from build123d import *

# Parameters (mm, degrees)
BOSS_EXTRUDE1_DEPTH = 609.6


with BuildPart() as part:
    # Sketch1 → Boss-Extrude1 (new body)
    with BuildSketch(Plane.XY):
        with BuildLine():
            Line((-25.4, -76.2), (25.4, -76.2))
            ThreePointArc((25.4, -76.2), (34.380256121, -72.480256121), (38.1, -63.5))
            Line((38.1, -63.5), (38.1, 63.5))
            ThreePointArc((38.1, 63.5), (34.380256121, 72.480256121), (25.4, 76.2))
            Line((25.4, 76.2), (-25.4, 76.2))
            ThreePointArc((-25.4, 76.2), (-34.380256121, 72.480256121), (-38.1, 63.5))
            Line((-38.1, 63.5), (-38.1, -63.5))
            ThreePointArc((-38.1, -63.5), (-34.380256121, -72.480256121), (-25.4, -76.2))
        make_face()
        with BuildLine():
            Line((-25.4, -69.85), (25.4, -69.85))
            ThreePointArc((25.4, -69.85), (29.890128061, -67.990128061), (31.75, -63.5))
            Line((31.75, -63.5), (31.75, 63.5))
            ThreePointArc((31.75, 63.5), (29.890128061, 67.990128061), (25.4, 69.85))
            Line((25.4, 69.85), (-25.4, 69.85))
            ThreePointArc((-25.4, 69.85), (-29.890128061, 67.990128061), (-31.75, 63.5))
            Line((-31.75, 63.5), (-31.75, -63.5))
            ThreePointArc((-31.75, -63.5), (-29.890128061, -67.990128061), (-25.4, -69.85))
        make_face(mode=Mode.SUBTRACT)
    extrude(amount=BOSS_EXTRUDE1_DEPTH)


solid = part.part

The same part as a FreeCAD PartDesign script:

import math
import FreeCAD as App
import Part
import Sketcher

V = App.Vector
Q = App.Units.Quantity

doc = App.newDocument("Part")
body = doc.addObject("PartDesign::Body", "Body")

sketch1 = doc.addObject("Sketcher::SketchObject", "Sketch")
body.addObject(sketch1)
sketch1.AttachmentSupport = (doc.XY_Plane, [""])
sketch1.MapMode = "FlatFace"
sketch1.addGeometry(Part.LineSegment(V(-25, -76, 0), V(25, -76, 0)), False)
sketch1.addGeometry(Part.ArcOfCircle(Part.Circle(V(25, -64, 0), V(0, 0, 1), 13), math.radians(-90), math.radians(0)), False)
sketch1.addGeometry(Part.LineSegment(V(38, -64, 0), V(38, 64, 0)), False)
sketch1.addGeometry(Part.ArcOfCircle(Part.Circle(V(25, 64, 0), V(0, 0, 1), 13), math.radians(0), math.radians(90)), False)
sketch1.addGeometry(Part.LineSegment(V(25, 76, 0), V(-25, 76, 0)), False)
sketch1.addGeometry(Part.ArcOfCircle(Part.Circle(V(-25, 64, 0), V(0, 0, 1), 13), math.radians(90), math.radians(180)), False)
sketch1.addGeometry(Part.LineSegment(V(-38, 64, 0), V(-38, -64, 0)), False)
sketch1.addGeometry(Part.ArcOfCircle(Part.Circle(V(-25, -64, 0), V(0, 0, 1), 13), math.radians(180), math.radians(270)), False)
sketch1.addGeometry(Part.LineSegment(V(25, -70, 0), V(-25, -70, 0)), False)
sketch1.addGeometry(Part.ArcOfCircle(Part.Circle(V(-25, -64, 0), V(0, 0, 1), 6), math.radians(180), math.radians(270)), False)
sketch1.addGeometry(Part.LineSegment(V(-32, -64, 0), V(-32, 64, 0)), False)
sketch1.addGeometry(Part.ArcOfCircle(Part.Circle(V(-25, 64, 0), V(0, 0, 1), 6), math.radians(90), math.radians(180)), False)
sketch1.addGeometry(Part.LineSegment(V(-25, 70, 0), V(25, 70, 0)), False)
sketch1.addGeometry(Part.ArcOfCircle(Part.Circle(V(25, 64, 0), V(0, 0, 1), 6), math.radians(0), math.radians(90)), False)
sketch1.addGeometry(Part.LineSegment(V(32, 64, 0), V(32, -64, 0)), False)
sketch1.addGeometry(Part.ArcOfCircle(Part.Circle(V(25, -64, 0), V(0, 0, 1), 6), math.radians(-90), math.radians(0)), False)
sketch1.addConstraint(Sketcher.Constraint("Tangent", 0, 2, 1, 1))
sketch1.addConstraint(Sketcher.Constraint("Tangent", 1, 2, 2, 1))
sketch1.addConstraint(Sketcher.Constraint("Tangent", 2, 2, 3, 1))
sketch1.addConstraint(Sketcher.Constraint("Tangent", 3, 2, 4, 1))
sketch1.addConstraint(Sketcher.Constraint("Tangent", 4, 2, 5, 1))
sketch1.addConstraint(Sketcher.Constraint("Tangent", 5, 2, 6, 1))
sketch1.addConstraint(Sketcher.Constraint("Tangent", 6, 2, 7, 1))
sketch1.addConstraint(Sketcher.Constraint("Tangent", 7, 2, 0, 1))
sketch1.addConstraint(Sketcher.Constraint("Tangent", 8, 2, 9, 2))
sketch1.addConstraint(Sketcher.Constraint("Tangent", 9, 1, 10, 1))
sketch1.addConstraint(Sketcher.Constraint("Tangent", 10, 2, 11, 2))
sketch1.addConstraint(Sketcher.Constraint("Tangent", 11, 1, 12, 1))
sketch1.addConstraint(Sketcher.Constraint("Tangent", 12, 2, 13, 2))
sketch1.addConstraint(Sketcher.Constraint("Tangent", 13, 1, 14, 1))
sketch1.addConstraint(Sketcher.Constraint("Tangent", 14, 2, 15, 2))
sketch1.addConstraint(Sketcher.Constraint("Tangent", 15, 1, 8, 1))
sketch1.addConstraint(Sketcher.Constraint("Horizontal", 0))
sketch1.addConstraint(Sketcher.Constraint("Vertical", 2))
sketch1.addConstraint(Sketcher.Constraint("Horizontal", 4))
sketch1.addConstraint(Sketcher.Constraint("Vertical", 6))
sketch1.addConstraint(Sketcher.Constraint("Horizontal", 8))
sketch1.addConstraint(Sketcher.Constraint("Vertical", 10))
sketch1.addConstraint(Sketcher.Constraint("Horizontal", 12))
sketch1.addConstraint(Sketcher.Constraint("Vertical", 14))
sketch1.addConstraint(Sketcher.Constraint("Coincident", 9, 3, 7, 3))
sketch1.addConstraint(Sketcher.Constraint("Coincident", 11, 3, 5, 3))
sketch1.addConstraint(Sketcher.Constraint("Coincident", 13, 3, 3, 3))
sketch1.addConstraint(Sketcher.Constraint("Equal", 1, 3))
sketch1.addConstraint(Sketcher.Constraint("Equal", 3, 5))
sketch1.addConstraint(Sketcher.Constraint("Equal", 5, 7))
sketch1.addConstraint(Sketcher.Constraint("Equal", 13, 15))
sketch1.addConstraint(Sketcher.Constraint("Symmetric", 1, 3, 5, 3, -1, 1))
sketch1.addConstraint(Sketcher.Constraint("Radius", 1, Q("0.5 in")))
sketch1.addConstraint(Sketcher.Constraint("DistanceX", 0, 1, 0, 2, Q("2 in")))
sketch1.addConstraint(Sketcher.Constraint("DistanceY", 2, 1, 2, 2, Q("5 in")))
sketch1.addConstraint(Sketcher.Constraint("Radius", 9, Q("0.25 in")))
pad1 = doc.addObject("PartDesign::Pad", "Pad")
body.addObject(pad1)
pad1.Profile = sketch1
pad1.Length = Q("24 in")

doc.recompute()
